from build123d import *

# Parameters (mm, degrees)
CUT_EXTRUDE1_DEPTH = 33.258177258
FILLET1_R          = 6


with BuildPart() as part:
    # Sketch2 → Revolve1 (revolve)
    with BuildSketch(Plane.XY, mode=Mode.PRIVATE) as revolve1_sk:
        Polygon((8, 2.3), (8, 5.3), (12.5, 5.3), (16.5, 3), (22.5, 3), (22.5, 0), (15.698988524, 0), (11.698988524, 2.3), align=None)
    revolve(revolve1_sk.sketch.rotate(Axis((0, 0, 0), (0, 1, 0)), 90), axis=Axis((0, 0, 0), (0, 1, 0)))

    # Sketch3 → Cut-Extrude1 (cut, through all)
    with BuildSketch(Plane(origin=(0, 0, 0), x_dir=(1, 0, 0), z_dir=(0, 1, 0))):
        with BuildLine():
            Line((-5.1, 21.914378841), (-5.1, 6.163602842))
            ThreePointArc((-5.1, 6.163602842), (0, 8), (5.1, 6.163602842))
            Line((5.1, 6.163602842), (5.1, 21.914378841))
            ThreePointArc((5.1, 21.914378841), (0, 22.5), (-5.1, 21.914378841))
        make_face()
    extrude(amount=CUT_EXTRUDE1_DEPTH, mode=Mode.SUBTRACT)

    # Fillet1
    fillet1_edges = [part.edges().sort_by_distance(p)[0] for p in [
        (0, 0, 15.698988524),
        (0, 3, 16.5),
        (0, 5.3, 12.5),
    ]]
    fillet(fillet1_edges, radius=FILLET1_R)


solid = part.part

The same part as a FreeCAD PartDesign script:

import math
import FreeCAD as App
import Part
import Sketcher
Q = App.Units.Quantity


def edges_at(feature, points):
    """Names of the edges that pass closest to the given points."""
    edges = feature.Shape.Edges
    near = lambda p: min(range(len(edges)), key=lambda i: edges[i].distToShape(Part.Vertex(*p))[0])
    return sorted({f"Edge{near(p) + 1}" for p in points})


def add_polygon(sketch, points):
    """Adds a closed chain of lines whose ends are joined by coincident constraints."""
    first, n = sketch.GeometryCount, len(points)
    for a, b in zip(points, points[1:] + points[:1]):
        sketch.addGeometry(Part.LineSegment(App.Vector(*a, 0), App.Vector(*b, 0)), False)
    for i in range(n):
        sketch.addConstraint(Sketcher.Constraint("Coincident", first + i, 2, first + (i + 1) % n, 1))

doc = App.newDocument("Part")
body = doc.addObject("PartDesign::Body", "Body")

sketch1 = body.newObject("Sketcher::SketchObject", "Sketch")
sketch1.AttachmentSupport = (doc.getObject("XY_Plane"), [""])
sketch1.MapMode = "FlatFace"
add_polygon(sketch1, [(8, 5.3), (8, 2.3), (11.698989, 2.3), (15.698989, 0), (22.5, 0), (22.5, 3), (16.5, 3), (12.5, 5.3)])
sketch1.addConstraint(Sketcher.Constraint("Vertical", 0))
sketch1.addConstraint(Sketcher.Constraint("Horizontal", 1))
sketch1.addConstraint(Sketcher.Constraint("Horizontal", 3))
sketch1.addConstraint(Sketcher.Constraint("Vertical", 4))
sketch1.addConstraint(Sketcher.Constraint("Horizontal", 5))
sketch1.addConstraint(Sketcher.Constraint("Horizontal", 7))
sketch1.addConstraint(Sketcher.Constraint("PointOnObject", 2, 2, -1))
sketch1.addConstraint(Sketcher.Constraint("Parallel", 2, 6))
sketch1.addConstraint(Sketcher.Constraint("Equal", 0, 4))
sketch1.addConstraint(Sketcher.Constraint("DistanceX", 5, 2, 5, 1, Q("6 mm")))
sketch1.addConstraint(Sketcher.Constraint("DistanceY", 0, 2, 0, 1, Q("3 mm")))
sketch1.addConstraint(Sketcher.Constraint("DistanceX", 7, 2, 7, 1, Q("4.5 mm")))
sketch1.addConstraint(Sketcher.Constraint("DistanceX", -1, 1, 0, 2, Q("8 mm")))
sketch1.addConstraint(Sketcher.Constraint("DistanceX", 1, 2, 2, 2, Q("4 mm")))
sketch1.addConstraint(Sketcher.Constraint("DistanceY", -1, 1, 0, 2, Q("2.3 mm")))
sketch1.addConstraint(Sketcher.Constraint("DistanceX", 1, 1, 1, 2, Q("3.698989 mm")))
revolution = body.newObject("PartDesign::Revolution", "Revolution")
revolution.Profile = sketch1
revolution.ReferenceAxis = (sketch1, ["V_Axis"])
revolution.Angle = 360

sketch2 = body.newObject("Sketcher::SketchObject", "Sketch001")
sketch2.AttachmentSupport = (doc.getObject("XZ_Plane"), [""])
sketch2.MapMode = "FlatFace"
sketch2.addGeometry(Part.LineSegment(App.Vector(-5.1, -21.914379, 0), App.Vector(-5.1, -6.163603, 0)), False)
sketch2.addGeometry(Part.ArcOfCircle(Part.Circle(App.Vector(0, 0, 0), App.Vector(0, 0, 1), 8), math.radians(-129.605652), math.radians(-50.394348)), False)
sketch2.addGeometry(Part.LineSegment(App.Vector(5.1, -6.163603, 0), App.Vector(5.1, -21.914379, 0)), False)
sketch2.addGeometry(Part.ArcOfCircle(Part.Circle(App.Vector(0, 0, 0), App.Vector(0, 0, 1), 22.5), math.radians(-103.100904), math.radians(-76.899096)), False)
sketch2.addConstraint(Sketcher.Constraint("Coincident", 0, 2, 1, 1))
sketch2.addConstraint(Sketcher.Constraint("Coincident", 1, 2, 2, 1))
sketch2.addConstraint(Sketcher.Constraint("Coincident", 2, 2, 3, 2))
sketch2.addConstraint(Sketcher.Constraint("Coincident", 3, 1, 0, 1))
sketch2.addConstraint(Sketcher.Constraint("Vertical", 0))
sketch2.addConstraint(Sketcher.Constraint("Vertical", 2))
sketch2.addConstraint(Sketcher.Constraint("Coincident", 1, 3, -1, 1))
sketch2.addConstraint(Sketcher.Constraint("Coincident", 3, 3, -1, 1))
sketch2.addConstraint(Sketcher.Constraint("Horizontal", 0, 2, 1, 2))
sketch2.addConstraint(Sketcher.Constraint("Radius", 1, Q("8 mm")))
sketch2.addConstraint(Sketcher.Constraint("Radius", 3, Q("22.5 mm")))
sketch2.addConstraint(Sketcher.Constraint("DistanceX", 0, 2, -1, 1, Q("5.1 mm")))
pocket1 = body.newObject("PartDesign::Pocket", "Pocket")
pocket1.Profile = sketch2
pocket1.Type = "ThroughAll"
doc.recompute()

fillet = body.newObject("PartDesign::Fillet", "Fillet")
fillet.Base = (pocket1, edges_at(pocket1, [(0, 0, 15.699), (0, 3, 16.5), (0, 5.3, 12.5)]))
fillet.Radius = 6

doc.recompute()
